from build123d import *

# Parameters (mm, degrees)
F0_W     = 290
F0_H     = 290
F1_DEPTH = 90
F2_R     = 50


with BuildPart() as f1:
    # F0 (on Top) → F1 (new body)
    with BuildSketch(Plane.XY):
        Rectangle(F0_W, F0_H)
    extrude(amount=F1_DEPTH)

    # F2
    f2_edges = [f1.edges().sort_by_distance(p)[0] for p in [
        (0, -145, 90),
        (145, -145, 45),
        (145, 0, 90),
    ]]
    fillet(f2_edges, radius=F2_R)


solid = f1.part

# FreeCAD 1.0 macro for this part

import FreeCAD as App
import Part
import Sketcher


def edges_at(feature, points):
    """Names of the edges that pass closest to the given points."""
    edges = feature.Shape.Edges
    near = lambda p: min(range(len(edges)), key=lambda i: edges[i].distToShape(Part.Vertex(*p))[0])
    return sorted({f"Edge{near(p) + 1}" for p in points})

doc = App.newDocument("Part")
body = doc.addObject("PartDesign::Body", "Body")

# Sketch on XY plane
sketch1 = body.newObject("Sketcher::SketchObject", "Sketch")
sketch1.AttachmentSupport = (doc.getObject("XY_Plane"), [""])
sketch1.MapMode = "FlatFace"
sketch1.addGeometry([
    Part.LineSegment(App.Vector(-145, 145, 0), App.Vector(-145, -145, 0)),
    Part.LineSegment(App.Vector(-145, -145, 0), App.Vector(145, -145, 0)),
    Part.LineSegment(App.Vector(145, -145, 0), App.Vector(145, 145, 0)),
    Part.LineSegment(App.Vector(145, 145, 0), App.Vector(-145, 145, 0)),
], False)
sketch1.addConstraint([
    Sketcher.Constraint("Coincident", 0, 2, 1, 1),
    Sketcher.Constraint("Coincident", 1, 2, 2, 1),
    Sketcher.Constraint("Coincident", 2, 2, 3, 1),
    Sketcher.Constraint("Coincident", 3, 2, 0, 1),
    Sketcher.Constraint("Vertical", 0),
    Sketcher.Constraint("Horizontal", 1),
    Sketcher.Constraint("Vertical", 2),
    Sketcher.Constraint("Horizontal", 3),
    Sketcher.Constraint("Symmetric", 0, 2, 2, 2, -1, 1),
    Sketcher.Constraint("Equal", 3, 0),
    Sketcher.Constraint("DistanceX", 1, 1, 1, 2, 290.0),
])
pad1 = body.newObject("PartDesign::Pad", "Pad")
pad1.Profile = sketch1
pad1.Length = 90
doc.recompute()

fillet = body.newObject("PartDesign::Fillet", "Fillet")
fillet.Base = (pad1, edges_at(pad1, [(0, -145, 90), (145, -145, 45), (145, 0, 90)]))
fillet.Radius = 50

doc.recompute()
